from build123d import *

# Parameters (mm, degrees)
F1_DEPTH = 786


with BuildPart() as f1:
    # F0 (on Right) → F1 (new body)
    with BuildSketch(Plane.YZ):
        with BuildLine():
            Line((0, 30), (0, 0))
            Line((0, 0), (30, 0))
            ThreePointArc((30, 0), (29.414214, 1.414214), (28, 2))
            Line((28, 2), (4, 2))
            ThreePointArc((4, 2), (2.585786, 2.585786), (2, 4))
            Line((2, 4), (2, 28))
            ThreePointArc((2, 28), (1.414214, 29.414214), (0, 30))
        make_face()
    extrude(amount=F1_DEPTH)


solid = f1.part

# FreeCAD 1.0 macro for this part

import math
import FreeCAD as App
import Part
import Sketcher
from FreeCAD import Vector

doc = App.newDocument("Part")
body = doc.addObject("PartDesign::Body", "Body")

# Sketch on YZ plane
sketch1 = body.newObject("Sketcher::SketchObject", "Sketch")
sketch1.AttachmentSupport = (doc.getObject("YZ_Plane"), [""])
sketch1.MapMode = "FlatFace"
sketch1.addGeometry([
    Part.LineSegment(Vector(0, 30, 0), Vector(0, 0, 0)),  # 0
    Part.LineSegment(Vector(0, 0, 0), Vector(30, 0, 0)),  # 1
    Part.ArcOfCircle(Part.Circle(Vector(28, 0, 0), Vector(0, 0, 1), 2), math.radians(0), math.radians(90)),  # 2
    Part.LineSegment(Vector(28, 2, 0), Vector(4, 2, 0)),  # 3
    Part.ArcOfCircle(Part.Circle(Vector(4, 4, 0), Vector(0, 0, 1), 2), math.radians(180), math.radians(270)),  # 4
    Part.LineSegment(Vector(2, 4, 0), Vector(2, 28, 0)),  # 5
    Part.ArcOfCircle(Part.Circle(Vector(0, 28, 0), Vector(0, 0, 1), 2), math.radians(0), math.radians(90)),  # 6
], False)
sketch1.addConstraint([
    Sketcher.Constraint("Coincident", 0, 2, 1, 1),
    Sketcher.Constraint("Coincident", 1, 2, 2, 1),
    Sketcher.Constraint("Tangent", 2, 2, 3, 1),
    Sketcher.Constraint("Tangent", 3, 2, 4, 2),
    Sketcher.Constraint("Tangent", 4, 1, 5, 1),
    Sketcher.Constraint("Tangent", 5, 2, 6, 1),
    Sketcher.Constraint("Coincident", 6, 2, 0, 1),
    Sketcher.Constraint("Vertical", 0),
    Sketcher.Constraint("Horizontal", 1),
    Sketcher.Constraint("Horizontal", 3),
    Sketcher.Constraint("Vertical", 5),
    Sketcher.Constraint("Coincident", 0, 2, -1, 1),
    Sketcher.Constraint("Equal", 2, 4),
    Sketcher.Constraint("Equal", 4, 6),
    Sketcher.Constraint("PointOnObject", 2, 3, -1),
    Sketcher.Constraint("PointOnObject", 6, 3, -2),
    Sketcher.Constraint("Equal", 1, 0),
    Sketcher.Constraint("Radius", 2, 1.999999),
    Sketcher.Constraint("DistanceX", 1, 1, 1, 2, 30.0),
])
pad1 = body.newObject("PartDesign::Pad", "Pad")
pad1.Profile = sketch1
pad1.Length = 786

doc.recompute()
